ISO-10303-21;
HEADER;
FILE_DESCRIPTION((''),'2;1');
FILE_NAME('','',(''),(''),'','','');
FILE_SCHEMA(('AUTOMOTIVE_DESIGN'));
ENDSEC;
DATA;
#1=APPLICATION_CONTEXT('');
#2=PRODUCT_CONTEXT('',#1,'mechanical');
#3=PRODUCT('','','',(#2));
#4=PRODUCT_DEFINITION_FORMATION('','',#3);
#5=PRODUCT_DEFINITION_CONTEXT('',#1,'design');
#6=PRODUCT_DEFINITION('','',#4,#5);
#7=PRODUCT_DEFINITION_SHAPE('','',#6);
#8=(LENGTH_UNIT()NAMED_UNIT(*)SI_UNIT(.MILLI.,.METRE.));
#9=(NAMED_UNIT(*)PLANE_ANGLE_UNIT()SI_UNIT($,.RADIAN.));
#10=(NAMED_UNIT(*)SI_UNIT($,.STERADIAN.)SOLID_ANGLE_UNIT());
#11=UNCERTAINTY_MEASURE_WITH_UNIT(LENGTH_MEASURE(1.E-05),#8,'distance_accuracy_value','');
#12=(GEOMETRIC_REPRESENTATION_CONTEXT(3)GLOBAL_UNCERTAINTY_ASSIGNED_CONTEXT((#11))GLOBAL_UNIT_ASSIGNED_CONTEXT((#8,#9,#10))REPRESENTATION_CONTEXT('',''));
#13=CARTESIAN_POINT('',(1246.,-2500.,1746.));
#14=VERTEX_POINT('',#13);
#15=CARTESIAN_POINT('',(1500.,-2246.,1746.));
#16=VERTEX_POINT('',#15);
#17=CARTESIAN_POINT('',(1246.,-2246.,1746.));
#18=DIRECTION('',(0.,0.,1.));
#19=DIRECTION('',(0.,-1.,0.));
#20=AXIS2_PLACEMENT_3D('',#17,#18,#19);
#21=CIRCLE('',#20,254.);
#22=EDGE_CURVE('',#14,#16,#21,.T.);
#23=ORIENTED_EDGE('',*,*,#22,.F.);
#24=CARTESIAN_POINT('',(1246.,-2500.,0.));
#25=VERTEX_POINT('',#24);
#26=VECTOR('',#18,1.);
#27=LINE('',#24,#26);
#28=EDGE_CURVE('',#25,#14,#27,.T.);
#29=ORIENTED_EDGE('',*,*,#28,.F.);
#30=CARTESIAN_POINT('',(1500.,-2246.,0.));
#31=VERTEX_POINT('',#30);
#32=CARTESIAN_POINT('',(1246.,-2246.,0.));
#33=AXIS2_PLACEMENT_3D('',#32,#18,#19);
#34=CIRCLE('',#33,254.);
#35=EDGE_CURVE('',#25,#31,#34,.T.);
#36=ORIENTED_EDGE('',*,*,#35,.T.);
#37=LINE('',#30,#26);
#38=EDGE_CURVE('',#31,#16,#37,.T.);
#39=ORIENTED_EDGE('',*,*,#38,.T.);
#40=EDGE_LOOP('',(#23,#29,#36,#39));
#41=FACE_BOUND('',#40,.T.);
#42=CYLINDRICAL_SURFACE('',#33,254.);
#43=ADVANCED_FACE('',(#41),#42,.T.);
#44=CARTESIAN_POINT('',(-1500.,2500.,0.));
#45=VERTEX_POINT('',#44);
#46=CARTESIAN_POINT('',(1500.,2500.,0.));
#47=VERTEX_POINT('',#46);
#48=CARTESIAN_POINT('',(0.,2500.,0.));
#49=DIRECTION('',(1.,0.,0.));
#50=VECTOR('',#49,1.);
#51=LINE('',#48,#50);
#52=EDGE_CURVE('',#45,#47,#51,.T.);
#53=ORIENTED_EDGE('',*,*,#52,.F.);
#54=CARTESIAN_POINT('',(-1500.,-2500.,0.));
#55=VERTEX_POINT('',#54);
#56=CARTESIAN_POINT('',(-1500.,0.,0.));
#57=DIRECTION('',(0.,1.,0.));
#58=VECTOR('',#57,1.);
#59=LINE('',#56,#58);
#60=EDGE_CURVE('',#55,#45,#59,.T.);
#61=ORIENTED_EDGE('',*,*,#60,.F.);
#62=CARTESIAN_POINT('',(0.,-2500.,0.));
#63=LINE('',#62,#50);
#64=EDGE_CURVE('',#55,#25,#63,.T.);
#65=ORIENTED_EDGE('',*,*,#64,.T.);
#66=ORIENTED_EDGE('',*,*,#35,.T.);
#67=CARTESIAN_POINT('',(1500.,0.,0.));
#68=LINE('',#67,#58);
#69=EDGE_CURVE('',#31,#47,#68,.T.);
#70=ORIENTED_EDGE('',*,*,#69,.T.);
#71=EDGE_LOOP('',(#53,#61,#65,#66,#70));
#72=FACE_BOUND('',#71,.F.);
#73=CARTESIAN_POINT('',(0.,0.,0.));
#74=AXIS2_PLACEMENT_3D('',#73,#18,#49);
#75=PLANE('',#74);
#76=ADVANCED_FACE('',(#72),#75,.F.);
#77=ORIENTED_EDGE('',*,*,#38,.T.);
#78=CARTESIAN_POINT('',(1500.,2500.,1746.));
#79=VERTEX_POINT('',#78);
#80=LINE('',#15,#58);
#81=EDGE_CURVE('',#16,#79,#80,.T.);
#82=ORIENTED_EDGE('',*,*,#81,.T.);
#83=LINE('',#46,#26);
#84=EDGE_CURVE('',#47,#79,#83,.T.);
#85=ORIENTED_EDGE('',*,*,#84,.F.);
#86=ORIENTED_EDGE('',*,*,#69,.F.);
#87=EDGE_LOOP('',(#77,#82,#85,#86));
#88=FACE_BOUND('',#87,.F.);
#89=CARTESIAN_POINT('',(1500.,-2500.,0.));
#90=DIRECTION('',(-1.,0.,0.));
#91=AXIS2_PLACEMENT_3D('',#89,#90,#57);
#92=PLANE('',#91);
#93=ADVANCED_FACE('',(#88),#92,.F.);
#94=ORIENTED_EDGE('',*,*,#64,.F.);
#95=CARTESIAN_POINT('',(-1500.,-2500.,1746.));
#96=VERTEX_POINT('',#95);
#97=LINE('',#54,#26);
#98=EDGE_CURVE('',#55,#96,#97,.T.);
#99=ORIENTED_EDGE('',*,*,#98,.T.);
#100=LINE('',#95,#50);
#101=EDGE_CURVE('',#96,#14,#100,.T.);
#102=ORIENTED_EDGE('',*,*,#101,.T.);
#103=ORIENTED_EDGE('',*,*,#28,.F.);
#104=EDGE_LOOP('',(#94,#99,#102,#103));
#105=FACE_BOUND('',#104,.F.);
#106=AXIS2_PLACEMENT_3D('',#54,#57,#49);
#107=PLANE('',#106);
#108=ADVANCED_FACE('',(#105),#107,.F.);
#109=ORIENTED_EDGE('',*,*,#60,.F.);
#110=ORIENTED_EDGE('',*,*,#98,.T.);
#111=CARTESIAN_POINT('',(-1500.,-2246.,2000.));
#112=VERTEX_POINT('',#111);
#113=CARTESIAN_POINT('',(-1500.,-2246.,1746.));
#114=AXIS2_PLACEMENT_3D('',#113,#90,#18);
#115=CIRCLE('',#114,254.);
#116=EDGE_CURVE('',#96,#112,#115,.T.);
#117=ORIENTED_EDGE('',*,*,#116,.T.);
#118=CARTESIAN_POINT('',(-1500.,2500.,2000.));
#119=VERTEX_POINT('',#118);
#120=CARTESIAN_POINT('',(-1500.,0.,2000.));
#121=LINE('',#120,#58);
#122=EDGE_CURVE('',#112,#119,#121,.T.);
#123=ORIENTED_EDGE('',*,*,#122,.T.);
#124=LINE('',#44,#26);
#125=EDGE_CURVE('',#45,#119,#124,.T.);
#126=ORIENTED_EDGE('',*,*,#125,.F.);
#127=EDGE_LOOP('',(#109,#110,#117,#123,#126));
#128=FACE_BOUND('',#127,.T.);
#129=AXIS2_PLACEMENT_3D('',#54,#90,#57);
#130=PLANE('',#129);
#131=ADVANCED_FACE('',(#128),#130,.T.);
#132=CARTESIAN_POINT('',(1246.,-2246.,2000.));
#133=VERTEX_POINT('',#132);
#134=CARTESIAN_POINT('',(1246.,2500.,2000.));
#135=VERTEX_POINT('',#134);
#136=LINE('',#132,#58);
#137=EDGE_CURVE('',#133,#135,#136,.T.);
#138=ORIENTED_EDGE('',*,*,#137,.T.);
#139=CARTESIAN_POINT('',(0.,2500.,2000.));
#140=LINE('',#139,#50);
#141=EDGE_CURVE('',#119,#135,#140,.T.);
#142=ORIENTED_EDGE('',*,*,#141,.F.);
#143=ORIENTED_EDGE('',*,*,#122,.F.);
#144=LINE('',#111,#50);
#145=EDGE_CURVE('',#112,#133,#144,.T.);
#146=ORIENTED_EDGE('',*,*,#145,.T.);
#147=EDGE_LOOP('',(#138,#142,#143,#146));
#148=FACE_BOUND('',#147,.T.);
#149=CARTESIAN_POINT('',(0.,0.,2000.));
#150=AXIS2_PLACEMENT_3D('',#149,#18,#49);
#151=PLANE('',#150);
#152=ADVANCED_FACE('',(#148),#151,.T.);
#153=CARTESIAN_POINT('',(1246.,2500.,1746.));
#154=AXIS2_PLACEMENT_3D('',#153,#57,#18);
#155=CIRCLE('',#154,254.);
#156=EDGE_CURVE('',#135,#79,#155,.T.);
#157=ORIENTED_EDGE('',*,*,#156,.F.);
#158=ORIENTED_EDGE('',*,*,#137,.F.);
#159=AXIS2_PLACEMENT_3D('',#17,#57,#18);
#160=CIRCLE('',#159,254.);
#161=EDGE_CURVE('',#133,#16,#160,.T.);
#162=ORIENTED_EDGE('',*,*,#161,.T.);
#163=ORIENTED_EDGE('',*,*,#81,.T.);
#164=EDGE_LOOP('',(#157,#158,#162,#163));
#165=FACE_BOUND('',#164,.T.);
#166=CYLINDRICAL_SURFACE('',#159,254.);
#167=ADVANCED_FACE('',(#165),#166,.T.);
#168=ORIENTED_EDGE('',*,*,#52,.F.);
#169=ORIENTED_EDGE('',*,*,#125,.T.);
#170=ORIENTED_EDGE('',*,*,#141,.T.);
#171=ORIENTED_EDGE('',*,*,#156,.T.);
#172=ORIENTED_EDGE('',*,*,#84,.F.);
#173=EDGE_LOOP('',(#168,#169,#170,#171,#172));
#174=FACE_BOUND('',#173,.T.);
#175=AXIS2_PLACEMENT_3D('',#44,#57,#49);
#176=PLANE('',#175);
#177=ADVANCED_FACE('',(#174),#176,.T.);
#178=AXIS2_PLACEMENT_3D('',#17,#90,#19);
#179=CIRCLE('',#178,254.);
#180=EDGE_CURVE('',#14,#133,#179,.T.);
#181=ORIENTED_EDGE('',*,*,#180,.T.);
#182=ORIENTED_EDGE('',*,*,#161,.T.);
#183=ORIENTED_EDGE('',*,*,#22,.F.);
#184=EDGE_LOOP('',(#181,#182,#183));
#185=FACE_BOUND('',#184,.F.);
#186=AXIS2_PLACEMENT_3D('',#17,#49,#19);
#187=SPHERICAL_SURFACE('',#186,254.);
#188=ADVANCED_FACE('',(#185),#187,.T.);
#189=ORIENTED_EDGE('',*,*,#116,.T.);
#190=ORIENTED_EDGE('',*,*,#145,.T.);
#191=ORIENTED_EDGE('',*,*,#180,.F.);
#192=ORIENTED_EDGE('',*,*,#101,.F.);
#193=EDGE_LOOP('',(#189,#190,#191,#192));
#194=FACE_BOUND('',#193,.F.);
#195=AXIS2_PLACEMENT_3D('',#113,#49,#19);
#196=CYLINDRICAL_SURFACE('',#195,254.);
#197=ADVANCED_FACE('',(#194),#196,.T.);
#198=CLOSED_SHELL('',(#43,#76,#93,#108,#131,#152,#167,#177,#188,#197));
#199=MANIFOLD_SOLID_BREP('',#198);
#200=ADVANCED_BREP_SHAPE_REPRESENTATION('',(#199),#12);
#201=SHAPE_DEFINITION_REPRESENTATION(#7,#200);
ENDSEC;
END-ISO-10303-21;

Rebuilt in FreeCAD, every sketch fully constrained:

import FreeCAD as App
import Part
import Sketcher


def edges_at(feature, points):
    """Names of the edges that pass closest to the given points."""
    edges = feature.Shape.Edges
    near = lambda p: min(range(len(edges)), key=lambda i: edges[i].distToShape(Part.Vertex(*p))[0])
    return sorted({f"Edge{near(p) + 1}" for p in points})


def add_polygon(sketch, points):
    """Adds a closed chain of lines whose ends are joined by coincident constraints."""
    first, n = sketch.GeometryCount, len(points)
    for a, b in zip(points, points[1:] + points[:1]):
        sketch.addGeometry(Part.LineSegment(App.Vector(*a, 0), App.Vector(*b, 0)), False)
    for i in range(n):
        sketch.addConstraint(Sketcher.Constraint("Coincident", first + i, 2, first + (i + 1) % n, 1))

doc = App.newDocument("Part")
params = doc.addObject("Spreadsheet::Sheet", "Params")
for row, (alias, value) in enumerate([
    ("sketch1_width", "3000 mm"),
    ("sketch1_height", "5000 mm"),
    ("pad1_length", "2000 mm"),
    ("fillet_radius", "254 mm"),
    ("fillet2_radius", "254 mm"),
], start=1):
    params.set(f"A{row}", alias)
    params.set(f"B{row}", "=" + value)
    params.setAlias(f"B{row}", alias)

body = doc.addObject("PartDesign::Body", "Body")

# Sketch on XY plane
sketch1 = body.newObject("Sketcher::SketchObject", "Sketch")
sketch1.AttachmentSupport = (doc.getObject("XY_Plane"), [""])
sketch1.MapMode = "FlatFace"
add_polygon(sketch1, [(-1500, 2500), (-1500, -2500), (1500, -2500), (1500, 2500)])  # lines 0-3
sketch1.addConstraint([
    Sketcher.Constraint("Vertical", 0),
    Sketcher.Constraint("Horizontal", 1),
    Sketcher.Constraint("Vertical", 2),
    Sketcher.Constraint("Horizontal", 3),
    Sketcher.Constraint("Symmetric", 0, 2, 2, 2, -1, 1),
    Sketcher.Constraint("DistanceX", 1, 1, 1, 2, 3000.0),
    Sketcher.Constraint("DistanceY", 0, 2, 0, 1, 5000.0),
])
sketch1.setExpression("Constraints[9]", "Params.sketch1_width")
sketch1.setExpression("Constraints[10]", "Params.sketch1_height")
pad1 = body.newObject("PartDesign::Pad", "Pad")
pad1.Profile = sketch1
pad1.setExpression("Length", "Params.pad1_length")
doc.recompute()

fillet = body.newObject("PartDesign::Fillet", "Fillet")
fillet.Base = (pad1, edges_at(pad1, [(0, -2500, 2000)]))
fillet.setExpression("Radius", "Params.fillet_radius")
doc.recompute()

fillet2 = body.newObject("PartDesign::Fillet", "Fillet001")
fillet2.Base = (fillet, edges_at(fillet, [(1500, -2500, 873), (1500, -2425.605, 1925.605), (1500, 127, 2000)]))
fillet2.setExpression("Radius", "Params.fillet2_radius")

doc.recompute()
